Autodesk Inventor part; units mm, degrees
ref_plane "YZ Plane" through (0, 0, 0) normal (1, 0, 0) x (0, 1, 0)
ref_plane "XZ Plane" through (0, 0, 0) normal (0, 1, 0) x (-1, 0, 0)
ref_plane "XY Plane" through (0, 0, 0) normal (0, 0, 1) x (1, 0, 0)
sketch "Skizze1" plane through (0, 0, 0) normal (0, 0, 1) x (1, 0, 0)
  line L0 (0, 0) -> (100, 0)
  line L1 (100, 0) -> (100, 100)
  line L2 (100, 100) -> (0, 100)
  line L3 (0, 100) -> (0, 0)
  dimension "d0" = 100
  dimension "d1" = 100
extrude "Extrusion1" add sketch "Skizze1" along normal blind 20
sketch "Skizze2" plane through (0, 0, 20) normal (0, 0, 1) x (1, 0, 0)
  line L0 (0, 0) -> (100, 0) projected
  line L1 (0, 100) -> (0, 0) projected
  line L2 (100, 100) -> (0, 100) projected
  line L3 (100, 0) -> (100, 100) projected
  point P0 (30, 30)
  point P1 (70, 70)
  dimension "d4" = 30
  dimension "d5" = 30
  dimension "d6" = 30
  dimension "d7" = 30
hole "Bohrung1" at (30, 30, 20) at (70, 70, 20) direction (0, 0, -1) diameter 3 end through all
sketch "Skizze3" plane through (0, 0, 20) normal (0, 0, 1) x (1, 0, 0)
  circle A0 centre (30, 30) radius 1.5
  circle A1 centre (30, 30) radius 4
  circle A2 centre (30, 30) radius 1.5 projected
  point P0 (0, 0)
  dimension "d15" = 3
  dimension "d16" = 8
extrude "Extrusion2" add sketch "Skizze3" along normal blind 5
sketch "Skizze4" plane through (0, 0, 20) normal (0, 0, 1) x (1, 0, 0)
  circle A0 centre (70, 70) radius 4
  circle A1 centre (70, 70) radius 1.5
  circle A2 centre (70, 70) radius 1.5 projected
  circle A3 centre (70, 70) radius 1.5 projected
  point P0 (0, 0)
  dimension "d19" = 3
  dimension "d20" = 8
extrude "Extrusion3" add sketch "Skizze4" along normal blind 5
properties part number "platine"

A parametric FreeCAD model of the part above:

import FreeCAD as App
import Part
import Sketcher

doc = App.newDocument("Part")
params = doc.addObject("Spreadsheet::Sheet", "Params")
for row, (alias, value) in enumerate([
    ("sketch1_width", "100 mm"),
    ("pad1_length", "20 mm"),
    ("sketch2_diameter", "3 mm"),
    ("hole_diameter", "3 mm"),
    ("sketch3_diameter", "8 mm"),
    ("sketch3_diameter2", "3 mm"),
    ("pad2_length", "5 mm"),
    ("sketch4_diameter", "8 mm"),
    ("sketch4_diameter2", "3 mm"),
    ("pad3_length", "5 mm"),
], start=1):
    params.set(f"A{row}", alias)
    params.set(f"B{row}", "=" + value)
    params.setAlias(f"B{row}", alias)

body = doc.addObject("PartDesign::Body", "Body")

# Sketch on XY plane
sketch1 = doc.addObject("Sketcher::SketchObject", "Sketch")
body.addObject(sketch1)
sketch1.AttachmentSupport = (doc.XY_Plane, [""])
sketch1.MapMode = "FlatFace"
sketch1.addGeometry(Part.LineSegment(App.Vector(0, 100, 0), App.Vector(0, 0, 0)), False)
sketch1.addGeometry(Part.LineSegment(App.Vector(0, 0, 0), App.Vector(100, 0, 0)), False)
sketch1.addGeometry(Part.LineSegment(App.Vector(100, 0, 0), App.Vector(100, 100, 0)), False)
sketch1.addGeometry(Part.LineSegment(App.Vector(100, 100, 0), App.Vector(0, 100, 0)), False)
sketch1.addConstraint(Sketcher.Constraint("Coincident", 0, 2, 1, 1))
sketch1.addConstraint(Sketcher.Constraint("Coincident", 1, 2, 2, 1))
sketch1.addConstraint(Sketcher.Constraint("Coincident", 2, 2, 3, 1))
sketch1.addConstraint(Sketcher.Constraint("Coincident", 3, 2, 0, 1))
sketch1.addConstraint(Sketcher.Constraint("Vertical", 0))
sketch1.addConstraint(Sketcher.Constraint("Horizontal", 1))
sketch1.addConstraint(Sketcher.Constraint("Vertical", 2))
sketch1.addConstraint(Sketcher.Constraint("Horizontal", 3))
sketch1.addConstraint(Sketcher.Constraint("Coincident", 0, 2, -1, 1))
sketch1.addConstraint(Sketcher.Constraint("Equal", 3, 0))
sketch1.addConstraint(Sketcher.Constraint("DistanceX", 1, 1, 1, 2, 100.0))
sketch1.setExpression("Constraints[10]", "Params.sketch1_width")
pad1 = doc.addObject("PartDesign::Pad", "Pad")
body.addObject(pad1)
pad1.Profile = sketch1
pad1.setExpression("Length", "Params.pad1_length")

# Sketch on XY plane
sketch2 = doc.addObject("Sketcher::SketchObject", "Sketch001")
body.addObject(sketch2)
sketch2.AttachmentSupport = (doc.XY_Plane, [""])
sketch2.MapMode = "FlatFace"
sketch2.AttachmentOffset = App.Placement(App.Vector(0, 0, 20), App.Rotation())
sketch2.addGeometry(Part.Circle(App.Vector(30, 30, 0), App.Vector(0, 0, 1), 1.5), False)
sketch2.addGeometry(Part.Circle(App.Vector(70, 70, 0), App.Vector(0, 0, 1), 1.5), False)
sketch2.addConstraint(Sketcher.Constraint("Equal", 0, 1))
sketch2.addConstraint(Sketcher.Constraint("Diameter", 0, 3.0))
sketch2.addConstraint(Sketcher.Constraint("DistanceX", -1, 1, 0, 3, 30.0))
sketch2.addConstraint(Sketcher.Constraint("DistanceY", -1, 1, 0, 3, 30.0))
sketch2.addConstraint(Sketcher.Constraint("DistanceX", -1, 1, 1, 3, 70.0))
sketch2.addConstraint(Sketcher.Constraint("DistanceY", -1, 1, 1, 3, 70.0))
sketch2.setExpression("Constraints[1]", "Params.sketch2_diameter")
doc.recompute()
hole = doc.addObject("PartDesign::Hole", "Hole")
body.addObject(hole)
hole.Profile = sketch2
hole.ThreadType = "None"
hole.setExpression("Diameter", "Params.hole_diameter")
hole.DepthType = "ThroughAll"

# Sketch on XY plane
sketch3 = doc.addObject("Sketcher::SketchObject", "Sketch002")
body.addObject(sketch3)
sketch3.AttachmentSupport = (doc.XY_Plane, [""])
sketch3.MapMode = "FlatFace"
sketch3.AttachmentOffset = App.Placement(App.Vector(0, 0, 20), App.Rotation())
sketch3.addGeometry(Part.Circle(App.Vector(30, 30, 0), App.Vector(0, 0, 1), 4), False)
sketch3.addGeometry(Part.Circle(App.Vector(30, 30, 0), App.Vector(0, 0, 1), 1.5), False)
sketch3.addConstraint(Sketcher.Constraint("Coincident", 1, 3, 0, 3))
sketch3.addConstraint(Sketcher.Constraint("Diameter", 0, 8.0))
sketch3.addConstraint(Sketcher.Constraint("Diameter", 1, 3.0))
sketch3.addConstraint(Sketcher.Constraint("DistanceX", -1, 1, 0, 3, 30.0))
sketch3.addConstraint(Sketcher.Constraint("DistanceY", -1, 1, 0, 3, 30.0))
sketch3.setExpression("Constraints[1]", "Params.sketch3_diameter")
sketch3.setExpression("Constraints[2]", "Params.sketch3_diameter2")
pad2 = doc.addObject("PartDesign::Pad", "Pad001")
body.addObject(pad2)
pad2.Profile = sketch3
pad2.setExpression("Length", "Params.pad2_length")

# Sketch on XY plane
sketch4 = doc.addObject("Sketcher::SketchObject", "Sketch003")
body.addObject(sketch4)
sketch4.AttachmentSupport = (doc.XY_Plane, [""])
sketch4.MapMode = "FlatFace"
sketch4.AttachmentOffset = App.Placement(App.Vector(0, 0, 20), App.Rotation())
sketch4.addGeometry(Part.Circle(App.Vector(70, 70, 0), App.Vector(0, 0, 1), 4), False)
sketch4.addGeometry(Part.Circle(App.Vector(70, 70, 0), App.Vector(0, 0, 1), 1.5), False)
sketch4.addConstraint(Sketcher.Constraint("Coincident", 1, 3, 0, 3))
sketch4.addConstraint(Sketcher.Constraint("Diameter", 0, 8.0))
sketch4.addConstraint(Sketcher.Constraint("Diameter", 1, 3.0))
sketch4.addConstraint(Sketcher.Constraint("DistanceX", -1, 1, 0, 3, 70.0))
sketch4.addConstraint(Sketcher.Constraint("DistanceY", -1, 1, 0, 3, 70.0))
sketch4.setExpression("Constraints[1]", "Params.sketch4_diameter")
sketch4.setExpression("Constraints[2]", "Params.sketch4_diameter2")
pad3 = doc.addObject("PartDesign::Pad", "Pad002")
body.addObject(pad3)
pad3.Profile = sketch4
pad3.setExpression("Length", "Params.pad3_length")

doc.recompute()
